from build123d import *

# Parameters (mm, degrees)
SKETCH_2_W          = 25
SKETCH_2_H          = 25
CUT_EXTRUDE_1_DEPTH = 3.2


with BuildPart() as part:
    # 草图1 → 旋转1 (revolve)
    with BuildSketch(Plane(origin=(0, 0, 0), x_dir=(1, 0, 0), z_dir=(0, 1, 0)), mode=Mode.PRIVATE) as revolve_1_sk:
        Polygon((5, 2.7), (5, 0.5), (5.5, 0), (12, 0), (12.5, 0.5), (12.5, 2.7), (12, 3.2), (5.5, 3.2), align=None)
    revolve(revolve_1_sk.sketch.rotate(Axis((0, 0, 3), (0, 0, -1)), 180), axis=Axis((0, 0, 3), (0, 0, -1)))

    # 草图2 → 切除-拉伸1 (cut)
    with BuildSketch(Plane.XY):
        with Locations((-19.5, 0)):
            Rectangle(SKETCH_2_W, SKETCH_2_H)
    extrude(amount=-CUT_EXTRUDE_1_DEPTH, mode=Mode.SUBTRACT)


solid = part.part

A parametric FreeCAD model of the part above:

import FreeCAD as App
import Part
import Sketcher

V = App.Vector

doc = App.newDocument("Part")
body = doc.addObject("PartDesign::Body", "Body")

# Sketch on XZ plane
sketch1 = doc.addObject("Sketcher::SketchObject", "Sketch")
body.addObject(sketch1)
sketch1.AttachmentSupport = (doc.XZ_Plane, [""])
sketch1.MapMode = "FlatFace"
sketch1.addGeometry([
    Part.LineSegment(V(5, -2.7, 0), V(5, -0.5, 0)),  # 0
    Part.LineSegment(V(5, -0.5, 0), V(5.5, 0, 0)),  # 1
    Part.LineSegment(V(5.5, 0, 0), V(12, 0, 0)),  # 2
    Part.LineSegment(V(12, 0, 0), V(12.5, -0.5, 0)),  # 3
    Part.LineSegment(V(12.5, -0.5, 0), V(12.5, -2.7, 0)),  # 4
    Part.LineSegment(V(12.5, -2.7, 0), V(12, -3.2, 0)),  # 5
    Part.LineSegment(V(12, -3.2, 0), V(5.5, -3.2, 0)),  # 6
    Part.LineSegment(V(5.5, -3.2, 0), V(5, -2.7, 0)),  # 7
], False)
sketch1.addConstraint([
    Sketcher.Constraint("Coincident", 0, 2, 1, 1),
    Sketcher.Constraint("Coincident", 1, 2, 2, 1),
    Sketcher.Constraint("Coincident", 2, 2, 3, 1),
    Sketcher.Constraint("Coincident", 3, 2, 4, 1),
    Sketcher.Constraint("Coincident", 4, 2, 5, 1),
    Sketcher.Constraint("Coincident", 5, 2, 6, 1),
    Sketcher.Constraint("Coincident", 6, 2, 7, 1),
    Sketcher.Constraint("Coincident", 7, 2, 0, 1),
    Sketcher.Constraint("Vertical", 0),
    Sketcher.Constraint("Horizontal", 2),
    Sketcher.Constraint("Vertical", 4),
    Sketcher.Constraint("Horizontal", 6),
    Sketcher.Constraint("PointOnObject", 1, 2, -1),
    Sketcher.Constraint("Perpendicular", 1, 3),
    Sketcher.Constraint("Perpendicular", 3, 5),
    Sketcher.Constraint("Perpendicular", 5, 7),
    Sketcher.Constraint("Horizontal", 0, 2, 3, 2),
    Sketcher.Constraint("Horizontal", 4, 2, 7, 2),
    Sketcher.Constraint("Vertical", 2, 2, 5, 2),
    Sketcher.Constraint("Vertical", 1, 2, 6, 2),
    Sketcher.Constraint("DistanceX", 2, 1, 2, 2, 6.5),
    Sketcher.Constraint("DistanceY", 0, 1, 0, 2, 2.2),
    Sketcher.Constraint("DistanceX", -1, 1, 0, 2, 5.0),
    Sketcher.Constraint("DistanceX", -1, 1, 2, 2, 12.0),
])
revolution = doc.addObject("PartDesign::Revolution", "Revolution")
body.addObject(revolution)
revolution.Profile = sketch1
revolution.ReferenceAxis = (sketch1, ["V_Axis"])
revolution.Angle = 360

# Sketch on XY plane
sketch2 = doc.addObject("Sketcher::SketchObject", "Sketch001")
body.addObject(sketch2)
sketch2.AttachmentSupport = (doc.XY_Plane, [""])
sketch2.MapMode = "FlatFace"
sketch2.addGeometry([
    Part.LineSegment(V(-32, 12, 0), V(-32, -12, 0)),
    Part.LineSegment(V(-32, -12, 0), V(-7, -12, 0)),
    Part.LineSegment(V(-7, -12, 0), V(-7, 12, 0)),
    Part.LineSegment(V(-7, 12, 0), V(-32, 12, 0)),
], False)
sketch2.addConstraint([
    Sketcher.Constraint("Coincident", 0, 2, 1, 1),
    Sketcher.Constraint("Coincident", 1, 2, 2, 1),
    Sketcher.Constraint("Coincident", 2, 2, 3, 1),
    Sketcher.Constraint("Coincident", 3, 2, 0, 1),
    Sketcher.Constraint("Vertical", 0),
    Sketcher.Constraint("Horizontal", 1),
    Sketcher.Constraint("Vertical", 2),
    Sketcher.Constraint("Horizontal", 3),
    Sketcher.Constraint("Equal", 3, 0),
    Sketcher.Constraint("DistanceX", 1, 1, 1, 2, 25.0),
    Sketcher.Constraint("DistanceX", 0, 2, -1, 1, 32.0),
    Sketcher.Constraint("DistanceY", 0, 2, -1, 1, 12.5),
])
pocket1 = doc.addObject("PartDesign::Pocket", "Pocket")
body.addObject(pocket1)
pocket1.Profile = sketch2
pocket1.Length = 3.2

doc.recompute()
